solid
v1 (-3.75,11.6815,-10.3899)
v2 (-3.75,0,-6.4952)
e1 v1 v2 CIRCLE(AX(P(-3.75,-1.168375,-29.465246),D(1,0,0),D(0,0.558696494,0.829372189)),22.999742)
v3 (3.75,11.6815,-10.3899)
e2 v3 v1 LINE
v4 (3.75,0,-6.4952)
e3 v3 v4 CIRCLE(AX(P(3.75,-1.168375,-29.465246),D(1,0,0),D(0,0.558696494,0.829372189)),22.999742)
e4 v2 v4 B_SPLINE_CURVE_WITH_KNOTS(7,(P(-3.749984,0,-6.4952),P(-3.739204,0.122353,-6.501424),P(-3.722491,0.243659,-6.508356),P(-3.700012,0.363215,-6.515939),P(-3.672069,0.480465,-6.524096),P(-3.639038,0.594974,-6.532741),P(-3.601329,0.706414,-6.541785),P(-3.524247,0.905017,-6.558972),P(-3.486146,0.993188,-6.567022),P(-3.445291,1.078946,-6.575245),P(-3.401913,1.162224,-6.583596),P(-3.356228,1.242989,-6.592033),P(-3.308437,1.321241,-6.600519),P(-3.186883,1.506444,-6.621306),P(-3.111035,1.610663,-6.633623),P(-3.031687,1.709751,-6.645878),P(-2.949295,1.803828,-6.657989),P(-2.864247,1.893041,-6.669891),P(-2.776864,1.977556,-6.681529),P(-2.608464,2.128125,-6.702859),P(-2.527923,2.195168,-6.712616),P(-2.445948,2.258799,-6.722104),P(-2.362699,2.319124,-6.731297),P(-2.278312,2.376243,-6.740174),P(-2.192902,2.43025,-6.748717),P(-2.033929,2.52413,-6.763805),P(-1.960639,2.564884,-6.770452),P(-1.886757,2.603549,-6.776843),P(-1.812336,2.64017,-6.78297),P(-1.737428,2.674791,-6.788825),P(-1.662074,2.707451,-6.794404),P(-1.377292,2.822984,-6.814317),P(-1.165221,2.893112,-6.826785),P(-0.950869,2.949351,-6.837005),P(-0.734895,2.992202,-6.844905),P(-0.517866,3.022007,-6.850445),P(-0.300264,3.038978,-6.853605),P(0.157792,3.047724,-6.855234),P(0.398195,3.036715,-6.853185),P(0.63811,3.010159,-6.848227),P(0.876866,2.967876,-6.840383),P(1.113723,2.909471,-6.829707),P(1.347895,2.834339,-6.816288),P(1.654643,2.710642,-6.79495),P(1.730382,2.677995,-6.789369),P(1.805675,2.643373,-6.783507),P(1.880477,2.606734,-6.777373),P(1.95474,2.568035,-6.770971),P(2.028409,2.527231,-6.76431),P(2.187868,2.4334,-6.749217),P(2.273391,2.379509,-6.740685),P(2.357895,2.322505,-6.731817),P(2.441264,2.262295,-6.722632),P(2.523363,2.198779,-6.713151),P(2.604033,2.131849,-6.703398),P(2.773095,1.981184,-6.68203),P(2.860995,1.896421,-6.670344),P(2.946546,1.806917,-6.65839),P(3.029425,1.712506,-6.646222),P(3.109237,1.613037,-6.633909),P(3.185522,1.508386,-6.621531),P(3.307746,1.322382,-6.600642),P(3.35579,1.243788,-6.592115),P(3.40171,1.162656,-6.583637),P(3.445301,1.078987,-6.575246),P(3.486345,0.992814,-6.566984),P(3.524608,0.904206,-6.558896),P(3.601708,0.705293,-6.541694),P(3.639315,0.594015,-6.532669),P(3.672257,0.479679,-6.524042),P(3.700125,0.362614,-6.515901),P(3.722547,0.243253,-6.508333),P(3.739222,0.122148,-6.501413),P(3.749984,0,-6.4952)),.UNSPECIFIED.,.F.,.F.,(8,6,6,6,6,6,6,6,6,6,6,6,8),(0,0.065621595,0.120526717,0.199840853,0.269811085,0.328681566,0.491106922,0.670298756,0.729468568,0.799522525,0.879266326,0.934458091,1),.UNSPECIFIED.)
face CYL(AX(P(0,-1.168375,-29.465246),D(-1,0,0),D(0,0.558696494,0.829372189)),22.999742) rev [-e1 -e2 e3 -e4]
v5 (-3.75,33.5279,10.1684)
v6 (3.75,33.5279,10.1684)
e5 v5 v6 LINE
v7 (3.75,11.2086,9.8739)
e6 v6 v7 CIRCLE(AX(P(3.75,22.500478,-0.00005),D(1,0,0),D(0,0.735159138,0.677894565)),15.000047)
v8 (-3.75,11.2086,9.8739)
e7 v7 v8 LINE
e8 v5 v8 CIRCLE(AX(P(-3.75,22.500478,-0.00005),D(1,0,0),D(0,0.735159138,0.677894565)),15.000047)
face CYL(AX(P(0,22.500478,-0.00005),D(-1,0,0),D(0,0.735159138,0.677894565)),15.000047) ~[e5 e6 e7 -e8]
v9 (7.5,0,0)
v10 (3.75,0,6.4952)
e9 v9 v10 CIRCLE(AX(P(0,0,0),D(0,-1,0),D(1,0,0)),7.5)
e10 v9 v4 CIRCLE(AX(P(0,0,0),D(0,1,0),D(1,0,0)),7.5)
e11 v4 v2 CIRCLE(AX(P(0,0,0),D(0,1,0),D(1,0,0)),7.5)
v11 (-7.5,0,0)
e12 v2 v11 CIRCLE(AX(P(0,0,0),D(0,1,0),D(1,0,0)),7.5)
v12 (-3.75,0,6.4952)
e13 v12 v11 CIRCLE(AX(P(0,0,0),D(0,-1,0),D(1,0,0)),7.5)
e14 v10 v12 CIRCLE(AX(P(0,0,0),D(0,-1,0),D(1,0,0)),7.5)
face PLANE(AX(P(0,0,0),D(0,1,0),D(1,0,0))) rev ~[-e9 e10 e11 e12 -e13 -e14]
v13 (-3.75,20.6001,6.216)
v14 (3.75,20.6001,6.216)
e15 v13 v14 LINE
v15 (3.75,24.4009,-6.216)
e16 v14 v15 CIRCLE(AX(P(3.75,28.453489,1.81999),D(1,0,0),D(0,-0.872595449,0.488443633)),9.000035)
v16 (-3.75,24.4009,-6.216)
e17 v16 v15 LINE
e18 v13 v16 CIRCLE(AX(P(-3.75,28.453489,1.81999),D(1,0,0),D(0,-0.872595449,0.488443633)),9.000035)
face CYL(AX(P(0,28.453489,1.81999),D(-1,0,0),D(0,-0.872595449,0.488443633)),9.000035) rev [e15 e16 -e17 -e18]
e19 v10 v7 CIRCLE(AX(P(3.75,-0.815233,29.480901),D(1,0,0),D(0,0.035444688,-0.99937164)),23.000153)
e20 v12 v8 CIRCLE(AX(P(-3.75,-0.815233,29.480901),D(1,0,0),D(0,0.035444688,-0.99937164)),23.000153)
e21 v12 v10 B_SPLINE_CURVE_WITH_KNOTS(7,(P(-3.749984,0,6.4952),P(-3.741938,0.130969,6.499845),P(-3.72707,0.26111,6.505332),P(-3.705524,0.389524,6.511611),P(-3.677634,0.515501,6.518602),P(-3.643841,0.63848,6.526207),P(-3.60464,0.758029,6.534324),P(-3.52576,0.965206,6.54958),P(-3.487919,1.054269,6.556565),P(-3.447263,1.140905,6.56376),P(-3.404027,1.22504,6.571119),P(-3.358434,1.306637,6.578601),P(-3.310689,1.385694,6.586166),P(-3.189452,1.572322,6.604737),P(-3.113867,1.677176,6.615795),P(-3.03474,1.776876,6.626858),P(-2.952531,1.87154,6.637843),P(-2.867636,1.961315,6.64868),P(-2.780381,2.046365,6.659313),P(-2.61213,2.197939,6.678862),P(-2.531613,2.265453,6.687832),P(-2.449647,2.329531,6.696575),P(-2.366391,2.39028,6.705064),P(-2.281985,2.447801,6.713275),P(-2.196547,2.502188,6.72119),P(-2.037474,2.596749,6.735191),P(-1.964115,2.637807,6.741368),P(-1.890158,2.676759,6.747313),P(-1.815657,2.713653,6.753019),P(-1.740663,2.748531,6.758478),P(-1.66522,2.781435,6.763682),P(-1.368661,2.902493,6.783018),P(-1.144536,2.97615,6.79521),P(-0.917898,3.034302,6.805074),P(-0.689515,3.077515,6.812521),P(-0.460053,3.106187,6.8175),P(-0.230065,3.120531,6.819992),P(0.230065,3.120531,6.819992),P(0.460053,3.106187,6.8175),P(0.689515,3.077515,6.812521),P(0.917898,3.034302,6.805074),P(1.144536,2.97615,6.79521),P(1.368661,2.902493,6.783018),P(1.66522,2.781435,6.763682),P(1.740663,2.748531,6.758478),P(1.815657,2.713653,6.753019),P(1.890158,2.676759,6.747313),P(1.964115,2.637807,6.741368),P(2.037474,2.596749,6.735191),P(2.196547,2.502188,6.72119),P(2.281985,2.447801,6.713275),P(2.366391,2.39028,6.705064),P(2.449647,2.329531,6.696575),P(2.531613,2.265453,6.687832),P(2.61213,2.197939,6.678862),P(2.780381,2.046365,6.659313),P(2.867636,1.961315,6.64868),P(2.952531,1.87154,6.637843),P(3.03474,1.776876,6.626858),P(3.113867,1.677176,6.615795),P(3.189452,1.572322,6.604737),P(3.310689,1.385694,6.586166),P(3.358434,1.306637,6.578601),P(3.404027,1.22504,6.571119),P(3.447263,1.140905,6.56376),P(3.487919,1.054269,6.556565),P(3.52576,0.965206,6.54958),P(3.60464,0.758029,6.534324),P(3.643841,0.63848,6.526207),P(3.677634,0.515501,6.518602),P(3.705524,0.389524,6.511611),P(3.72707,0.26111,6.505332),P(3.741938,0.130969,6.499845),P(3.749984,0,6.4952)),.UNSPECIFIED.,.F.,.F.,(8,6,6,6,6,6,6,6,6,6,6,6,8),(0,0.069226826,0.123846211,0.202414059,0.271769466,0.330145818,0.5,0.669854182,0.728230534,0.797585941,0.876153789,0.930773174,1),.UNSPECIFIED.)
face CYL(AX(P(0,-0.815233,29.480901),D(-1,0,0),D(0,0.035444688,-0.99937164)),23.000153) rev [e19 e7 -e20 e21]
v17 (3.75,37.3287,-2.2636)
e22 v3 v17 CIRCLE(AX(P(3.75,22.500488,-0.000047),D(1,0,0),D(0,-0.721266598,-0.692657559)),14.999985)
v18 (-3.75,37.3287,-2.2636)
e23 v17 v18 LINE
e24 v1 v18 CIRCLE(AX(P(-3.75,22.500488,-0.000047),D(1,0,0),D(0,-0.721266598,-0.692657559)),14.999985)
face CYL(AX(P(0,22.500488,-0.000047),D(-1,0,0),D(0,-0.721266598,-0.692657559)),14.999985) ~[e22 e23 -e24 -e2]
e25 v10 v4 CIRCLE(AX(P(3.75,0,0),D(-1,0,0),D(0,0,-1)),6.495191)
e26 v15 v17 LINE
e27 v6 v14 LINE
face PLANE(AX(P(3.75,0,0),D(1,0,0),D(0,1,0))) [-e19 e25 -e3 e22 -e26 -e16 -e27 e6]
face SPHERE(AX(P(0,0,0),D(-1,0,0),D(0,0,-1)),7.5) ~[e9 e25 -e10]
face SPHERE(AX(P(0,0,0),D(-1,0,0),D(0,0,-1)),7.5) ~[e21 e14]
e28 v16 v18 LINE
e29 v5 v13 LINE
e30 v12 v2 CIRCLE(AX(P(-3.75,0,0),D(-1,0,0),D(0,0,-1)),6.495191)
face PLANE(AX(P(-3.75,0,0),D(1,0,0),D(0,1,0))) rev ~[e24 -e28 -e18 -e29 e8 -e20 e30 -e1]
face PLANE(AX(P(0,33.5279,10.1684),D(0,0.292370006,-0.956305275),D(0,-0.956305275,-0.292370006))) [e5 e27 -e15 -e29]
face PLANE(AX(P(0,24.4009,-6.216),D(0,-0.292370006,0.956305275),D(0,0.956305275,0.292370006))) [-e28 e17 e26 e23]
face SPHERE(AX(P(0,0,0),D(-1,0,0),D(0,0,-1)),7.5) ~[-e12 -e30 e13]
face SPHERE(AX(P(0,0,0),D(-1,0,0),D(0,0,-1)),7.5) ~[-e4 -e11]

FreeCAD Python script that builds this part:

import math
import FreeCAD as App
import Part
import Sketcher
from FreeCAD import Vector
Q = App.Units.Quantity

doc = App.newDocument("Part")
params = doc.addObject("Spreadsheet::Sheet", "Params")
for row, (alias, value) in enumerate([
    ("sketch1_radius", "7.5 mm"),
    ("revolution_angle", "180 deg"),
    ("sketch2_radius", "23 mm"),
    ("sketch2_radius2", "9 mm"),
    ("sketch2_radius3", "15 mm"),
    ("pad1_length", "7.5 mm"),
], start=1):
    params.set(f"A{row}", alias)
    params.set(f"B{row}", "=" + value)
    params.setAlias(f"B{row}", alias)

body = doc.addObject("PartDesign::Body", "Body")

# Sketch on XY plane
sketch1 = body.newObject("Sketcher::SketchObject", "Sketch")
sketch1.AttachmentSupport = (doc.getObject("XY_Plane"), [""])
sketch1.MapMode = "FlatFace"
sketch1.addGeometry([
    Part.LineSegment(Vector(-8, 0, 0), Vector(8, 0, 0)),
    Part.ArcOfCircle(Part.Circle(Vector(0, 0, 0), Vector(0, 0, 1), 8), math.radians(0), math.radians(180)),
], False)
sketch1.addConstraint([
    Sketcher.Constraint("Coincident", 0, 1, 1, 2),
    Sketcher.Constraint("Coincident", 1, 1, 0, 2),
    Sketcher.Constraint("Horizontal", 0),
    Sketcher.Constraint("Coincident", 1, 3, -1, 1),
    Sketcher.Constraint("PointOnObject", 0, 1, -1),
    Sketcher.Constraint("Radius", 1, 7.5),
])
sketch1.setExpression("Constraints[5]", "Params.sketch1_radius")
revolution = body.newObject("PartDesign::Revolution", "Revolution")
revolution.Profile = sketch1
revolution.ReferenceAxis = (sketch1, ["H_Axis"])
revolution.setExpression("Angle", "Params.revolution_angle")
revolution.Midplane = True

# Sketch on YZ plane
sketch2 = body.newObject("Sketcher::SketchObject", "Sketch001")
sketch2.AttachmentSupport = (doc.getObject("YZ_Plane"), [""])
sketch2.MapMode = "FlatFace"
sketch2.addGeometry([
    Part.LineSegment(Vector(37, -2, 0), Vector(24, -6, 0)),  # 0
    Part.ArcOfCircle(Part.Circle(Vector(28, 2, 0), Vector(0, 0, 1), 9), math.radians(151), math.radians(243)),  # 1
    Part.LineSegment(Vector(21, 6, 0), Vector(34, 10, 0)),  # 2
    Part.ArcOfCircle(Part.Circle(Vector(23, 0, 0), Vector(0, 0, 1), 15), math.radians(43), math.radians(139)),  # 3
    Part.ArcOfCircle(Part.Circle(Vector(-1, 29, 0), Vector(0, 0, 1), 23), math.radians(-88), math.radians(-58)),  # 4
    Part.LineSegment(Vector(0, 6, 0), Vector(0, -6, 0)),  # 5
    Part.ArcOfCircle(Part.Circle(Vector(-1, -29, 0), Vector(0, 0, 1), 23), math.radians(56), math.radians(87)),  # 6
    Part.ArcOfCircle(Part.Circle(Vector(23, 0, 0), Vector(0, 0, 1), 15), math.radians(-136), math.radians(-9)),  # 7
], False)
sketch2.addConstraint([
    Sketcher.Constraint("Coincident", 0, 2, 1, 2),
    Sketcher.Constraint("Coincident", 1, 1, 2, 1),
    Sketcher.Constraint("Coincident", 2, 2, 3, 1),
    Sketcher.Constraint("Coincident", 3, 2, 4, 2),
    Sketcher.Constraint("Coincident", 4, 1, 5, 1),
    Sketcher.Constraint("Coincident", 5, 2, 6, 2),
    Sketcher.Constraint("Coincident", 6, 1, 7, 1),
    Sketcher.Constraint("Coincident", 7, 2, 0, 1),
    Sketcher.Constraint("Vertical", 5),
    Sketcher.Constraint("Coincident", 7, 3, 3, 3),
    Sketcher.Constraint("Equal", 4, 6),
    Sketcher.Constraint("Equal", 3, 7),
    Sketcher.Constraint("Symmetric", 4, 1, 5, 2, -1, 1),
    Sketcher.Constraint("PointOnObject", 3, 3, -1),
    Sketcher.Constraint("Parallel", 0, 2),
    Sketcher.Constraint("Equal", 0, 2),
    Sketcher.Constraint("Radius", 4, 23.0),
    Sketcher.Constraint("Radius", 1, 9.0),
    Sketcher.Constraint("Radius", 3, 15.0),
    Sketcher.Constraint("Angle", 0, Q("-163 deg")),
    Sketcher.Constraint("DistanceX", -1, 1, 1, 1, 20.6),
    Sketcher.Constraint("DistanceY", -1, 1, 1, 3, 1.82),
    Sketcher.Constraint("DistanceY", 6, 1, -1, 1, 10.39),
    Sketcher.Constraint("DistanceY", 0, 2, 3, 2, 16.09),
    Sketcher.Constraint("DistanceY", 5, 2, 5, 1, 12.9904),
    Sketcher.Constraint("DistanceX", -1, 1, 0, 2, 24.401),
    Sketcher.Constraint("DistanceY", 0, 2, -1, 1, 6.216),
])
sketch2.setExpression("Constraints[16]", "Params.sketch2_radius")
sketch2.setExpression("Constraints[17]", "Params.sketch2_radius2")
sketch2.setExpression("Constraints[18]", "Params.sketch2_radius3")
pad1 = body.newObject("PartDesign::Pad", "Pad")
pad1.Profile = sketch2
pad1.setExpression("Length", "Params.pad1_length")
pad1.Midplane = True

doc.recompute()
